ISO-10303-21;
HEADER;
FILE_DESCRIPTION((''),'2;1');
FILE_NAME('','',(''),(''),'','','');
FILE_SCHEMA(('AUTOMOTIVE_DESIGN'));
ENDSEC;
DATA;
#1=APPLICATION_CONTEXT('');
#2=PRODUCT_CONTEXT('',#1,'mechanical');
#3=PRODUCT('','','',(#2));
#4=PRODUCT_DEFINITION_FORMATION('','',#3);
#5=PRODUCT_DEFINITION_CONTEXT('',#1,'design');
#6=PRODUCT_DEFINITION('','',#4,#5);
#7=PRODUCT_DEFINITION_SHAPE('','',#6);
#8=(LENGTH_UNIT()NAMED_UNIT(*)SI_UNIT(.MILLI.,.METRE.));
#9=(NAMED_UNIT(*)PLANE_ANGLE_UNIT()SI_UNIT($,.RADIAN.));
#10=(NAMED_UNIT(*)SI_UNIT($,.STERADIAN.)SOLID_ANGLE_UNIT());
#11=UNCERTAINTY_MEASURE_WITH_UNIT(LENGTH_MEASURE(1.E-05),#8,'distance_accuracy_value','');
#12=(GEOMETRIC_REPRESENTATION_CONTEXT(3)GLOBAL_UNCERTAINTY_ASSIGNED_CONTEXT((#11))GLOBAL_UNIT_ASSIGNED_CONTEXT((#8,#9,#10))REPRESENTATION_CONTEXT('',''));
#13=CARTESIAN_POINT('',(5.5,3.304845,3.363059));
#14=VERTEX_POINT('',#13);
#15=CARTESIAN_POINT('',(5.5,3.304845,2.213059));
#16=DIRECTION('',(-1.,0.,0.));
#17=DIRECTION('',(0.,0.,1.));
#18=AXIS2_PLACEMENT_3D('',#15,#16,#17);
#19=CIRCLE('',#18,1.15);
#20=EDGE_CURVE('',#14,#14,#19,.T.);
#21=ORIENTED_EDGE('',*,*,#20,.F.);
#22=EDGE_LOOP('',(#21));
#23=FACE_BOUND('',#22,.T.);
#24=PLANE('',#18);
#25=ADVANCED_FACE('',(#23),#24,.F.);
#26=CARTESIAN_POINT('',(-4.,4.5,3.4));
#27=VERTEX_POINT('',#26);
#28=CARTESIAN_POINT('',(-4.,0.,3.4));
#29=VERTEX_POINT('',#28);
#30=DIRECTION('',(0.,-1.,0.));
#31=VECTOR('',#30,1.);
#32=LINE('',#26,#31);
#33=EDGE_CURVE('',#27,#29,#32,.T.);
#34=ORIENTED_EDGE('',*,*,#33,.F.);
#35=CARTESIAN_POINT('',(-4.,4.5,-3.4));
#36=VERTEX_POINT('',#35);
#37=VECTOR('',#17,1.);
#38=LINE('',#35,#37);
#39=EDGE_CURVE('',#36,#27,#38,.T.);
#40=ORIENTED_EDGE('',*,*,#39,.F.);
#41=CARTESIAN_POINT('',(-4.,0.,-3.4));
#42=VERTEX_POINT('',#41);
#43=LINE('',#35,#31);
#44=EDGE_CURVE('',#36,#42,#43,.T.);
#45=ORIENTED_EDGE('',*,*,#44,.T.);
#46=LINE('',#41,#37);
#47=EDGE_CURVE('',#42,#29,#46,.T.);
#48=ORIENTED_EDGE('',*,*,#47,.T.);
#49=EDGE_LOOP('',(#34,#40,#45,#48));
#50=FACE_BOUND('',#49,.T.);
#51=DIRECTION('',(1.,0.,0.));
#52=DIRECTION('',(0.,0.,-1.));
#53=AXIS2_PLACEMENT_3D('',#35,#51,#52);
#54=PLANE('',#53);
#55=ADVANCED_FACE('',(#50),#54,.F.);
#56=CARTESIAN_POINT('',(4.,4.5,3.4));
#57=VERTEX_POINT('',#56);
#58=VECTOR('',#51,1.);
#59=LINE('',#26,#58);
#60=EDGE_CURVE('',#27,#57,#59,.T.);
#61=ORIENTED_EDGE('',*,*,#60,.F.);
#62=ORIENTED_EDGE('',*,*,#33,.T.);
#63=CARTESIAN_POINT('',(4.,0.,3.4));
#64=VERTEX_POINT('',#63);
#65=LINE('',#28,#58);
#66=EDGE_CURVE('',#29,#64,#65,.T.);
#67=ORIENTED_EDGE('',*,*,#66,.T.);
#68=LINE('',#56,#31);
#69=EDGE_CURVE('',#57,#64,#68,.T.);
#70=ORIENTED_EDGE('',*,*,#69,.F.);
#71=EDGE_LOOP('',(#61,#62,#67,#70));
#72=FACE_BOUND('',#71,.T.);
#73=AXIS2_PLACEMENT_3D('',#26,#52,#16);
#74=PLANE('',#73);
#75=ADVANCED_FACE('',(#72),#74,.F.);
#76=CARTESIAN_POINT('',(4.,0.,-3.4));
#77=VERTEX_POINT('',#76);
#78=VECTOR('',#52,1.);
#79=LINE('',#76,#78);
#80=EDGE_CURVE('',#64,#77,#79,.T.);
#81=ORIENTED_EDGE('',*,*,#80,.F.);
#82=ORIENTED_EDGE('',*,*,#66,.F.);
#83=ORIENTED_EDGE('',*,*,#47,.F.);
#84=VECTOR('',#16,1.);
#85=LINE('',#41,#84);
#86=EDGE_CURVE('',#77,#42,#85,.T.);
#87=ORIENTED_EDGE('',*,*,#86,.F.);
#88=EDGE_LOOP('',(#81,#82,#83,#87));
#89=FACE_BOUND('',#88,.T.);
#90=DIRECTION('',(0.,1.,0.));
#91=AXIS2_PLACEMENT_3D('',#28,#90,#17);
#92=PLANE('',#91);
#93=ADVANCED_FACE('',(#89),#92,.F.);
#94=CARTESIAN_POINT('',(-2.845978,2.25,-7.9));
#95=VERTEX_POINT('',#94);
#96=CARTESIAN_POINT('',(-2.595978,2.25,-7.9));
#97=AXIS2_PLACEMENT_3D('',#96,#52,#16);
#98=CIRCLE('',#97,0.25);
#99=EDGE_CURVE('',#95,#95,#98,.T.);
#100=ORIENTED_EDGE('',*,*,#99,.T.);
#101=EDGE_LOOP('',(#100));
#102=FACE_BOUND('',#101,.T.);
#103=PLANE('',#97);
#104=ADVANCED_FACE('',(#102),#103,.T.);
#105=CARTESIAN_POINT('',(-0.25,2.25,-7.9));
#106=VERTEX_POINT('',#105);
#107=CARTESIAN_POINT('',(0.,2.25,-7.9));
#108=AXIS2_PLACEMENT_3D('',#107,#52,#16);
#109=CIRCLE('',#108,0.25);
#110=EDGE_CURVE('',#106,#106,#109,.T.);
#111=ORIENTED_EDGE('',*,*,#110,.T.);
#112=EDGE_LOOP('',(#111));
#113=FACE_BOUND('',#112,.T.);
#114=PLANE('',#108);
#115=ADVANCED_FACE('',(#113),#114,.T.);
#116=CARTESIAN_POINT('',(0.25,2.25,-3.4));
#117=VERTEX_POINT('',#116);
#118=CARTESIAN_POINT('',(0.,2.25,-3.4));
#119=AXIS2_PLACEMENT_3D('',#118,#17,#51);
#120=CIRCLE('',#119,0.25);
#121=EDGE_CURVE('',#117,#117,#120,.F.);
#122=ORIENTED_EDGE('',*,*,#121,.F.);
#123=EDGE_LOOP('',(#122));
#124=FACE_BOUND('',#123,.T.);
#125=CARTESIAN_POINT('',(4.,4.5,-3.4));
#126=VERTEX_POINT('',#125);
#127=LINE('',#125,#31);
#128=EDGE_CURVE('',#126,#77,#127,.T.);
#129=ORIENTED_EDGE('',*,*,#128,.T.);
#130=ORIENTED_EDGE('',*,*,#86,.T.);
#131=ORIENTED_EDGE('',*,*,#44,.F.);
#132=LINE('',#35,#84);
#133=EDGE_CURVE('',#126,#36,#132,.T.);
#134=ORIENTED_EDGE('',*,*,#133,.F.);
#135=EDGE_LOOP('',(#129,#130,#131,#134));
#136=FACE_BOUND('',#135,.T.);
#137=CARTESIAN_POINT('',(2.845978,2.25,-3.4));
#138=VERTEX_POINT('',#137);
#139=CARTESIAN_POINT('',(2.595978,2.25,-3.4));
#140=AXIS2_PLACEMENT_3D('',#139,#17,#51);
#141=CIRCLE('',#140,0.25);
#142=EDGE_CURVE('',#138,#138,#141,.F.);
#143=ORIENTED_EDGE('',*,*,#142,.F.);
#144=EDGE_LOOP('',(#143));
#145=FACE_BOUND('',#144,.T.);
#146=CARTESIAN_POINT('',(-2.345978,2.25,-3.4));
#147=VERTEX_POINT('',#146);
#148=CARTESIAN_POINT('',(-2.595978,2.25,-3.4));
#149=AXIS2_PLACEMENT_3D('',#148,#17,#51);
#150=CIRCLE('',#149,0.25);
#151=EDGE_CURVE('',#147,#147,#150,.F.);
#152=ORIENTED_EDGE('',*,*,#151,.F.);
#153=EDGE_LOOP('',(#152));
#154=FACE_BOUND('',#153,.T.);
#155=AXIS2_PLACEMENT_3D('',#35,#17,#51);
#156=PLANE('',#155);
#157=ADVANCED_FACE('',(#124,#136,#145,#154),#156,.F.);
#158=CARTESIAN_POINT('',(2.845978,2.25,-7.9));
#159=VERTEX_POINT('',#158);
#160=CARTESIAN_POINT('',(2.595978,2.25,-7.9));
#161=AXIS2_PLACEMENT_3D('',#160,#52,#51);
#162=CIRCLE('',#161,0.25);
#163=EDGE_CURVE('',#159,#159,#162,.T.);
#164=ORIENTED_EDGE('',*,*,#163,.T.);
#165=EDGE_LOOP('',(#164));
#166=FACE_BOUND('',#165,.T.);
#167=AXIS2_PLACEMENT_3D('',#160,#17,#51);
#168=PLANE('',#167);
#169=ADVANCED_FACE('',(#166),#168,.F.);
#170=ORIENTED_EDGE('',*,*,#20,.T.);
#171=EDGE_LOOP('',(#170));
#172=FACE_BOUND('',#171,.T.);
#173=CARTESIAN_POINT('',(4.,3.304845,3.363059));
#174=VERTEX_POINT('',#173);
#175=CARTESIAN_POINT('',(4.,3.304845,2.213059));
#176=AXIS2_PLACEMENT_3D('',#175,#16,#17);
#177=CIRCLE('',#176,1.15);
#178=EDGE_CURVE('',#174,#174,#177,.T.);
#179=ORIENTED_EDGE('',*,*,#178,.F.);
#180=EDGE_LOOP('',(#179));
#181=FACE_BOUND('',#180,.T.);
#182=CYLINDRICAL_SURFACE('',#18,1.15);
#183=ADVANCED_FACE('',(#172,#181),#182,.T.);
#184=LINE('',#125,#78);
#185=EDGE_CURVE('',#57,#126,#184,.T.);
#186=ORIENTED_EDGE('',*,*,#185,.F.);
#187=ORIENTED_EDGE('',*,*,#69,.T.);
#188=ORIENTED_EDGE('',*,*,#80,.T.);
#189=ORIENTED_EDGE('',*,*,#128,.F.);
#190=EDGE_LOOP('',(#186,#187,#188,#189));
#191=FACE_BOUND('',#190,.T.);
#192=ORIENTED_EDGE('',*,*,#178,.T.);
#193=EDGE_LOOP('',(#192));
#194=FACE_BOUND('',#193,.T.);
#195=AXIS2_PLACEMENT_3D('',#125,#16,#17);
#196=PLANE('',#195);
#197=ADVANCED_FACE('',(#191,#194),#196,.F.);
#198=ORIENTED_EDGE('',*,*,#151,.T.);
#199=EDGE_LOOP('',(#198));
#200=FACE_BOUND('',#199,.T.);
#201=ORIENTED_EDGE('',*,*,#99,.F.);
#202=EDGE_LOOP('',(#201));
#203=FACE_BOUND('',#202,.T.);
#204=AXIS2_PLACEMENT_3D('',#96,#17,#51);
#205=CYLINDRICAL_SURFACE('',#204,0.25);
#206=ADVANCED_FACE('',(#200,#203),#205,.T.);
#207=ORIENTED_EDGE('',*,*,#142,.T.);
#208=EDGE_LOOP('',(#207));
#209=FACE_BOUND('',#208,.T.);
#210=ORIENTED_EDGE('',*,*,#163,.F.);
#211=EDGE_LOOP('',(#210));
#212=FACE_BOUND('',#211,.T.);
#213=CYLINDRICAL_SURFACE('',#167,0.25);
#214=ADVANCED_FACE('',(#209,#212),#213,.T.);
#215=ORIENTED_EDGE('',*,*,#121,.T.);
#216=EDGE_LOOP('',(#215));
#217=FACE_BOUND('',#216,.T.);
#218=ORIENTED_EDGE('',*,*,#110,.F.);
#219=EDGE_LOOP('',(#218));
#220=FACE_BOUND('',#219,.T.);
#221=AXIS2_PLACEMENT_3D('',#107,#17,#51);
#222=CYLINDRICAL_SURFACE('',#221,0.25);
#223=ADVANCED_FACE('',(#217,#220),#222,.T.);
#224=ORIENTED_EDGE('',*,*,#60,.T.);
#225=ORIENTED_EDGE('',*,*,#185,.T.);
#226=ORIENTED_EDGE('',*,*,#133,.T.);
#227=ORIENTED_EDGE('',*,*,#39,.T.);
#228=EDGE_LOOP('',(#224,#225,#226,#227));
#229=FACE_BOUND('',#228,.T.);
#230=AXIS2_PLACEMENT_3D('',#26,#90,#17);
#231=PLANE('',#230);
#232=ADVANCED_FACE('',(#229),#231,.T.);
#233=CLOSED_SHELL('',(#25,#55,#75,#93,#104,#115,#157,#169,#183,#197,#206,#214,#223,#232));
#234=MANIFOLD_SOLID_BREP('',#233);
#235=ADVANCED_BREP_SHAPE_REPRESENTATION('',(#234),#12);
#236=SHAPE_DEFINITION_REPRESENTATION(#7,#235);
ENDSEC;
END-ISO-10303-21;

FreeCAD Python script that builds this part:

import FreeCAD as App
import Part
import Sketcher

V = App.Vector


def add_polygon(sketch, points):
    """Adds a closed chain of lines whose ends are joined by coincident constraints."""
    first, n = sketch.GeometryCount, len(points)
    for a, b in zip(points, points[1:] + points[:1]):
        sketch.addGeometry(Part.LineSegment(App.Vector(*a, 0), App.Vector(*b, 0)), False)
    for i in range(n):
        sketch.addConstraint(Sketcher.Constraint("Coincident", first + i, 2, first + (i + 1) % n, 1))

doc = App.newDocument("Part")
body = doc.addObject("PartDesign::Body", "Body")

sketch1 = body.newObject("Sketcher::SketchObject", "Sketch")
sketch1.AttachmentSupport = (doc.getObject("XZ_Plane"), [""])
sketch1.MapMode = "FlatFace"
add_polygon(sketch1, [(-4, -3.4), (-4, 3.4), (4, 3.4), (4, -3.4)])
sketch1.addConstraint([
    Sketcher.Constraint("Vertical", 0),
    Sketcher.Constraint("Horizontal", 1),
    Sketcher.Constraint("Vertical", 2),
    Sketcher.Constraint("Horizontal", 3),
    Sketcher.Constraint("Symmetric", 0, 2, 2, 2, -1, 1),
    Sketcher.Constraint("DistanceX", 1, 1, 1, 2, 8.0),
    Sketcher.Constraint("DistanceY", 0, 1, 0, 2, 6.8),
])
pad1 = body.newObject("PartDesign::Pad", "Pad")
pad1.Profile = sketch1
pad1.Length = 4.5
pad1.Reversed = True

sketch2 = body.newObject("Sketcher::SketchObject", "Sketch001")
sketch2.AttachmentSupport = (doc.getObject("XY_Plane"), [""])
sketch2.MapMode = "FlatFace"
sketch2.AttachmentOffset = App.Placement(V(0, 0, -3.4), App.Rotation())
sketch2.addGeometry([
    Part.Circle(V(0, 2.25, 0), V(0, 0, 1), 0.25),
    Part.Circle(V(-2.595978, 2.25, 0), V(0, 0, 1), 0.25),
    Part.Circle(V(2.595978, 2.25, 0), V(0, 0, 1), 0.25),
], False)
sketch2.addConstraint([
    Sketcher.Constraint("Equal", 0, 1),
    Sketcher.Constraint("Equal", 1, 2),
    Sketcher.Constraint("Symmetric", 1, 3, 2, 3, -2),
    Sketcher.Constraint("PointOnObject", 0, 3, -2),
    Sketcher.Constraint("Horizontal", 0, 3, 1, 3),
    Sketcher.Constraint("Diameter", 0, 0.5),
    Sketcher.Constraint("DistanceY", -1, 1, 0, 3, 2.25),
    Sketcher.Constraint("DistanceX", 1, 3, -1, 1, 2.595978),
])
pad2 = body.newObject("PartDesign::Pad", "Pad001")
pad2.Profile = sketch2
pad2.Length = 4.5
pad2.Reversed = True

sketch3 = body.newObject("Sketcher::SketchObject", "Sketch002")
sketch3.AttachmentSupport = (doc.getObject("YZ_Plane"), [""])
sketch3.MapMode = "FlatFace"
sketch3.AttachmentOffset = App.Placement(V(0, 0, 4), App.Rotation())
sketch3.addGeometry(Part.Circle(V(3.304845, 2.213059, 0), V(0, 0, 1), 1.15), False)
sketch3.addConstraint([
    Sketcher.Constraint("Diameter", 0, 2.3),
    Sketcher.Constraint("DistanceY", -1, 1, 0, 3, 2.213059),
    Sketcher.Constraint("DistanceX", -1, 1, 0, 3, 3.304845),
])
pad3 = body.newObject("PartDesign::Pad", "Pad002")
pad3.Profile = sketch3
pad3.Length = 1.5

doc.recompute()
